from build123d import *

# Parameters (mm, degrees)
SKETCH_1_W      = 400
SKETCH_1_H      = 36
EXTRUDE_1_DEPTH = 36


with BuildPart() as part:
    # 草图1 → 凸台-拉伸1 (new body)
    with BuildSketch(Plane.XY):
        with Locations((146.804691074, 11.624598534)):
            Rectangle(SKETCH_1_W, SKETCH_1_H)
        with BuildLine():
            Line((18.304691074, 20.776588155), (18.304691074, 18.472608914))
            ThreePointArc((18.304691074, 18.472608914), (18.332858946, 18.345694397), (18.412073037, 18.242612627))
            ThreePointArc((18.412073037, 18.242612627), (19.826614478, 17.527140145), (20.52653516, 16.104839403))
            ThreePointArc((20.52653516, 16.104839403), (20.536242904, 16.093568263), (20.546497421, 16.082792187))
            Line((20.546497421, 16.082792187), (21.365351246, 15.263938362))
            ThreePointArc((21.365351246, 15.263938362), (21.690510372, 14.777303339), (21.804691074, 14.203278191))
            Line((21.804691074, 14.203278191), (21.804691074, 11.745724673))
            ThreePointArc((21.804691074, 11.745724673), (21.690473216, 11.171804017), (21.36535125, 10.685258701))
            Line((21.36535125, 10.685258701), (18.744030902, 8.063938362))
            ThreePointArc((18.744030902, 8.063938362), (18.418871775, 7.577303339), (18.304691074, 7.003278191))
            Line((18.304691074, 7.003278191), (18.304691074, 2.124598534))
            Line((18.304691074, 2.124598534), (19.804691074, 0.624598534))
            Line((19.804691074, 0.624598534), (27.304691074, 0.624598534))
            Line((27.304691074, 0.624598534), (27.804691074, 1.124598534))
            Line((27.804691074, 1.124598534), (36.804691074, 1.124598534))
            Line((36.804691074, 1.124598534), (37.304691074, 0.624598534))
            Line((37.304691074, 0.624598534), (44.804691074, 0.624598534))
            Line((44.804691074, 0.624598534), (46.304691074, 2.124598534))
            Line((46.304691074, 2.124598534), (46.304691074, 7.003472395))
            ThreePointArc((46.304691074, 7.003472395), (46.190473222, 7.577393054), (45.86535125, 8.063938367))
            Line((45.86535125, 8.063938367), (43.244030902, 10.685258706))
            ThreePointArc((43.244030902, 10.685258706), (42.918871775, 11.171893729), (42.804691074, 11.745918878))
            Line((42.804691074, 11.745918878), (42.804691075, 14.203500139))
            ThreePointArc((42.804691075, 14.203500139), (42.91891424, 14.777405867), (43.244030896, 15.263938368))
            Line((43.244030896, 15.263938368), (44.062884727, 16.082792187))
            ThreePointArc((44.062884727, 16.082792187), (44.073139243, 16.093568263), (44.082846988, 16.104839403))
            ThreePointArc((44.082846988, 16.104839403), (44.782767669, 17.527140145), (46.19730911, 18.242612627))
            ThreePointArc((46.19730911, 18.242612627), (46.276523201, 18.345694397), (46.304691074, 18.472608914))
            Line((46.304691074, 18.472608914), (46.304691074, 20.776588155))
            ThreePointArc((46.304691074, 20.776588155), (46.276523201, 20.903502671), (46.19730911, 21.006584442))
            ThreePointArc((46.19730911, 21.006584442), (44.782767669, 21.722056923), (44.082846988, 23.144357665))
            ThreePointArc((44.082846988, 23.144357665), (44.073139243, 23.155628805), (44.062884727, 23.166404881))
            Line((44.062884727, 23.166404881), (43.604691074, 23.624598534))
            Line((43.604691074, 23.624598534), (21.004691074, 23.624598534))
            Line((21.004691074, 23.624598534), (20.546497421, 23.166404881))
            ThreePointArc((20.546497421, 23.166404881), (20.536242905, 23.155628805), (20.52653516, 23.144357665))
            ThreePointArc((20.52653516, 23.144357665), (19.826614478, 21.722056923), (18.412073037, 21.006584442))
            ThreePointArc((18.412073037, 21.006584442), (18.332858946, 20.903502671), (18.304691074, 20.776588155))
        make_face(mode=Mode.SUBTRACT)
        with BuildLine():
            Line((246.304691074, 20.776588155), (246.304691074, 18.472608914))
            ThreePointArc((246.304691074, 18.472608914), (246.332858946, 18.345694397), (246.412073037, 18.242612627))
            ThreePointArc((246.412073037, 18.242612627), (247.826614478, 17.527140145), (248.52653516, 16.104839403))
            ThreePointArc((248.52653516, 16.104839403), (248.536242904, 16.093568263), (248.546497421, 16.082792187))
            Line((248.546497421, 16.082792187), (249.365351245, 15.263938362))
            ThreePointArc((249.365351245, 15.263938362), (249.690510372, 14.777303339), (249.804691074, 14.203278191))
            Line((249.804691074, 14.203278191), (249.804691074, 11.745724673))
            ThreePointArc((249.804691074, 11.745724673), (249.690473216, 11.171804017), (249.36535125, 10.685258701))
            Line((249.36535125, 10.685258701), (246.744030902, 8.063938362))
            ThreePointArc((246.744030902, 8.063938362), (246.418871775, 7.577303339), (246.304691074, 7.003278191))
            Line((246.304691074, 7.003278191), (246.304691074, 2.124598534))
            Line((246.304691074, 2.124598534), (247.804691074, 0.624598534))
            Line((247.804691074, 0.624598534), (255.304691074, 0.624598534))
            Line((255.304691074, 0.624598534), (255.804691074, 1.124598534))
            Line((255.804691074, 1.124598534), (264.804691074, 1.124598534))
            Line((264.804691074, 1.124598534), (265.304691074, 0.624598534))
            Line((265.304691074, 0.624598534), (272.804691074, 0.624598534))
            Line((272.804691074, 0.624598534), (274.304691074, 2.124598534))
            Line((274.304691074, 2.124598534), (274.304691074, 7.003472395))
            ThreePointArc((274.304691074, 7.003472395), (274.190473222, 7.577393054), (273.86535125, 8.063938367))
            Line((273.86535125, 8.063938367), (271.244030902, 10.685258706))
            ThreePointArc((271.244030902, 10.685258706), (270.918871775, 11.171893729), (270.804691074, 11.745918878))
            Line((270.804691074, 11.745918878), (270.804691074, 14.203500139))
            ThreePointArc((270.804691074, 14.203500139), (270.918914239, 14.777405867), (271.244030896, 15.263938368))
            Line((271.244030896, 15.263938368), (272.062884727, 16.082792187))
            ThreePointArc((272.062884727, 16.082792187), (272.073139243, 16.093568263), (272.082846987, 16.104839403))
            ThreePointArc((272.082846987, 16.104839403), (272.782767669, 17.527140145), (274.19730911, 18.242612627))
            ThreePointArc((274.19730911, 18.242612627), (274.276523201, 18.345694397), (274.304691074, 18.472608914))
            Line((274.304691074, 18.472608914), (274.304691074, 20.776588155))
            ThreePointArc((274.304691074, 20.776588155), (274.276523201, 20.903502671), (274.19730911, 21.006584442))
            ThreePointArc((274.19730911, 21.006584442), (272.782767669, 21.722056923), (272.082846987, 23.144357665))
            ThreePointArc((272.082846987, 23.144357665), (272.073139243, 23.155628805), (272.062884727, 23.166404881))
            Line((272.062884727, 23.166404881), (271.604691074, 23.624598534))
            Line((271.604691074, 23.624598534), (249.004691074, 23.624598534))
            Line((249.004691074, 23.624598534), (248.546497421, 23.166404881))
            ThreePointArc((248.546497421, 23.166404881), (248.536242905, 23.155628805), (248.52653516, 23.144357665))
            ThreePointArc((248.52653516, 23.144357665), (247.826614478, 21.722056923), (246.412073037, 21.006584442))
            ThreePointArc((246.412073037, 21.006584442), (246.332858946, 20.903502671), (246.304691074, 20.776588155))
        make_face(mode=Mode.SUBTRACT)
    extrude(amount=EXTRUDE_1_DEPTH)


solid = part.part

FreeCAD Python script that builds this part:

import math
import FreeCAD as App
import Part
import Sketcher
from FreeCAD import Vector
Q = App.Units.Quantity

doc = App.newDocument("Part")
body = doc.addObject("PartDesign::Body", "Body")

sketch1 = body.newObject("Sketcher::SketchObject", "Sketch")
sketch1.AttachmentSupport = (doc.getObject("XY_Plane"), [""])
sketch1.MapMode = "FlatFace"
sketch1.addGeometry([
    Part.LineSegment(Vector(-53.195, 29.625, 0), Vector(-53.195, -6.375, 0)),
    Part.LineSegment(Vector(-53.195, -6.375, 0), Vector(346.805, -6.375, 0)),
    Part.LineSegment(Vector(346.805, -6.375, 0), Vector(346.805, 29.625, 0)),
    Part.LineSegment(Vector(346.805, 29.625, 0), Vector(-53.195, 29.625, 0)),
    Part.LineSegment(Vector(18.305, 18.473, 0), Vector(18.305, 20.777, 0)),
    Part.ArcOfCircle(Part.Circle(Vector(18.605, 20.777, 0), Vector(0, 0, 1), 0.3), math.radians(130), math.radians(180)),
    Part.ArcOfCircle(Part.Circle(Vector(18.049, 23.48, 0), Vector(0, 0, 1), 2.5), math.radians(-82), math.radians(-8)),
    Part.ArcOfCircle(Part.Circle(Vector(20.759, 22.954, 0), Vector(0, 0, 1), 0.3), math.radians(135), math.radians(140.68)),
    Part.LineSegment(Vector(20.546, 23.166, 0), Vector(21.005, 23.625, 0)),
    Part.LineSegment(Vector(21.005, 23.625, 0), Vector(43.605, 23.625, 0)),
    Part.LineSegment(Vector(43.605, 23.625, 0), Vector(44.063, 23.166, 0)),
    Part.ArcOfCircle(Part.Circle(Vector(43.851, 22.954, 0), Vector(0, 0, 1), 0.3), math.radians(39.32), math.radians(45)),
    Part.ArcOfCircle(Part.Circle(Vector(46.56, 23.48, 0), Vector(0, 0, 1), 2.5), math.radians(-172), math.radians(-98)),
    Part.ArcOfCircle(Part.Circle(Vector(46.005, 20.777, 0), Vector(0, 0, 1), 0.3), math.radians(0), math.radians(50)),
    Part.LineSegment(Vector(46.305, 20.777, 0), Vector(46.305, 18.473, 0)),
    Part.ArcOfCircle(Part.Circle(Vector(46.005, 18.473, 0), Vector(0, 0, 1), 0.3), math.radians(-50), math.radians(0)),
    Part.ArcOfCircle(Part.Circle(Vector(46.56, 15.769, 0), Vector(0, 0, 1), 2.5), math.radians(98), math.radians(172)),
    Part.ArcOfCircle(Part.Circle(Vector(43.851, 16.295, 0), Vector(0, 0, 1), 0.3), math.radians(-45), math.radians(-39.32)),
    Part.LineSegment(Vector(44.063, 16.083, 0), Vector(43.244, 15.264, 0)),
    Part.ArcOfCircle(Part.Circle(Vector(44.305, 14.203, 0), Vector(0, 0, 1), 1.5), math.radians(135), math.radians(180)),
    Part.LineSegment(Vector(42.805, 14.204, 0), Vector(42.805, 11.746, 0)),
    Part.ArcOfCircle(Part.Circle(Vector(44.305, 11.746, 0), Vector(0, 0, 1), 1.5), math.radians(180), math.radians(225)),
    Part.LineSegment(Vector(43.244, 10.685, 0), Vector(45.865, 8.064, 0)),
    Part.ArcOfCircle(Part.Circle(Vector(44.805, 7.003, 0), Vector(0, 0, 1), 1.5), math.radians(0), math.radians(45)),
    Part.LineSegment(Vector(46.305, 7.003, 0), Vector(46.305, 2.125, 0)),
    Part.LineSegment(Vector(46.305, 2.125, 0), Vector(44.805, 0.625, 0)),
    Part.LineSegment(Vector(44.805, 0.625, 0), Vector(37.305, 0.625, 0)),
    Part.LineSegment(Vector(37.305, 0.625, 0), Vector(36.805, 1.125, 0)),
    Part.LineSegment(Vector(36.805, 1.125, 0), Vector(27.805, 1.125, 0)),
    Part.LineSegment(Vector(27.805, 1.125, 0), Vector(27.305, 0.625, 0)),
    Part.LineSegment(Vector(27.305, 0.625, 0), Vector(19.805, 0.625, 0)),
    Part.LineSegment(Vector(19.805, 0.625, 0), Vector(18.305, 2.125, 0)),
    Part.LineSegment(Vector(18.305, 2.125, 0), Vector(18.305, 7.003, 0)),
    Part.ArcOfCircle(Part.Circle(Vector(19.805, 7.003, 0), Vector(0, 0, 1), 1.5), math.radians(135), math.radians(180)),
    Part.LineSegment(Vector(18.744, 8.064, 0), Vector(21.365, 10.685, 0)),
    Part.ArcOfCircle(Part.Circle(Vector(20.305, 11.746, 0), Vector(0, 0, 1), 1.5), math.radians(-45), math.radians(0)),
    Part.LineSegment(Vector(21.805, 11.746, 0), Vector(21.805, 14.203, 0)),
    Part.ArcOfCircle(Part.Circle(Vector(20.305, 14.203, 0), Vector(0, 0, 1), 1.5), math.radians(0), math.radians(45)),
    Part.LineSegment(Vector(21.365, 15.264, 0), Vector(20.546, 16.083, 0)),
    Part.ArcOfCircle(Part.Circle(Vector(20.759, 16.295, 0), Vector(0, 0, 1), 0.3), math.radians(-140.68), math.radians(-135)),
    Part.ArcOfCircle(Part.Circle(Vector(18.049, 15.769, 0), Vector(0, 0, 1), 2.5), math.radians(8), math.radians(82)),
    Part.ArcOfCircle(Part.Circle(Vector(18.605, 18.473, 0), Vector(0, 0, 1), 0.3), math.radians(180), math.radians(230)),
    Part.LineSegment(Vector(246.305, 18.473, 0), Vector(246.305, 20.777, 0)),
    Part.ArcOfCircle(Part.Circle(Vector(246.605, 20.777, 0), Vector(0, 0, 1), 0.3), math.radians(130), math.radians(180)),
    Part.ArcOfCircle(Part.Circle(Vector(246.049, 23.48, 0), Vector(0, 0, 1), 2.5), math.radians(-82), math.radians(-8)),
    Part.ArcOfCircle(Part.Circle(Vector(248.759, 22.954, 0), Vector(0, 0, 1), 0.3), math.radians(135), math.radians(140.68)),
    Part.LineSegment(Vector(248.546, 23.166, 0), Vector(249.005, 23.625, 0)),
    Part.LineSegment(Vector(249.005, 23.625, 0), Vector(271.605, 23.625, 0)),
    Part.LineSegment(Vector(271.605, 23.625, 0), Vector(272.063, 23.166, 0)),
    Part.ArcOfCircle(Part.Circle(Vector(271.851, 22.954, 0), Vector(0, 0, 1), 0.3), math.radians(39.32), math.radians(45)),
    Part.ArcOfCircle(Part.Circle(Vector(274.56, 23.48, 0), Vector(0, 0, 1), 2.5), math.radians(-172), math.radians(-98)),
    Part.ArcOfCircle(Part.Circle(Vector(274.005, 20.777, 0), Vector(0, 0, 1), 0.3), math.radians(0), math.radians(50)),
    Part.LineSegment(Vector(274.305, 20.777, 0), Vector(274.305, 18.473, 0)),
    Part.ArcOfCircle(Part.Circle(Vector(274.005, 18.473, 0), Vector(0, 0, 1), 0.3), math.radians(-50), math.radians(0)),
    Part.ArcOfCircle(Part.Circle(Vector(274.56, 15.769, 0), Vector(0, 0, 1), 2.5), math.radians(98), math.radians(172)),
    Part.ArcOfCircle(Part.Circle(Vector(271.851, 16.295, 0), Vector(0, 0, 1), 0.3), math.radians(-45), math.radians(-39.32)),
    Part.LineSegment(Vector(272.063, 16.083, 0), Vector(271.244, 15.264, 0)),
    Part.ArcOfCircle(Part.Circle(Vector(272.305, 14.203, 0), Vector(0, 0, 1), 1.5), math.radians(135), math.radians(180)),
    Part.LineSegment(Vector(270.805, 14.204, 0), Vector(270.805, 11.746, 0)),
    Part.ArcOfCircle(Part.Circle(Vector(272.305, 11.746, 0), Vector(0, 0, 1), 1.5), math.radians(180), math.radians(225)),
    Part.LineSegment(Vector(271.244, 10.685, 0), Vector(273.865, 8.064, 0)),
    Part.ArcOfCircle(Part.Circle(Vector(272.805, 7.003, 0), Vector(0, 0, 1), 1.5), math.radians(0), math.radians(45)),
    Part.LineSegment(Vector(274.305, 7.003, 0), Vector(274.305, 2.125, 0)),
    Part.LineSegment(Vector(274.305, 2.125, 0), Vector(272.805, 0.625, 0)),
    Part.LineSegment(Vector(272.805, 0.625, 0), Vector(265.305, 0.625, 0)),
    Part.LineSegment(Vector(265.305, 0.625, 0), Vector(264.805, 1.125, 0)),
    Part.LineSegment(Vector(264.805, 1.125, 0), Vector(255.805, 1.125, 0)),
    Part.LineSegment(Vector(255.805, 1.125, 0), Vector(255.305, 0.625, 0)),
    Part.LineSegment(Vector(255.305, 0.625, 0), Vector(247.805, 0.625, 0)),
    Part.LineSegment(Vector(247.805, 0.625, 0), Vector(246.305, 2.125, 0)),
    Part.LineSegment(Vector(246.305, 2.125, 0), Vector(246.305, 7.003, 0)),
    Part.ArcOfCircle(Part.Circle(Vector(247.805, 7.003, 0), Vector(0, 0, 1), 1.5), math.radians(135), math.radians(180)),
    Part.LineSegment(Vector(246.744, 8.064, 0), Vector(249.365, 10.685, 0)),
    Part.ArcOfCircle(Part.Circle(Vector(248.305, 11.746, 0), Vector(0, 0, 1), 1.5), math.radians(-45), math.radians(0)),
    Part.LineSegment(Vector(249.805, 11.746, 0), Vector(249.805, 14.203, 0)),
    Part.ArcOfCircle(Part.Circle(Vector(248.305, 14.203, 0), Vector(0, 0, 1), 1.5), math.radians(0), math.radians(45)),
    Part.LineSegment(Vector(249.365, 15.264, 0), Vector(248.546, 16.083, 0)),
    Part.ArcOfCircle(Part.Circle(Vector(248.759, 16.295, 0), Vector(0, 0, 1), 0.3), math.radians(-140.68), math.radians(-135)),
    Part.ArcOfCircle(Part.Circle(Vector(246.049, 15.769, 0), Vector(0, 0, 1), 2.5), math.radians(8), math.radians(82)),
    Part.ArcOfCircle(Part.Circle(Vector(246.605, 18.473, 0), Vector(0, 0, 1), 0.3), math.radians(180), math.radians(230)),
], False)
sketch1.addConstraint([
    Sketcher.Constraint("Coincident", 0, 2, 1, 1),
    Sketcher.Constraint("Coincident", 1, 2, 2, 1),
    Sketcher.Constraint("Coincident", 2, 2, 3, 1),
    Sketcher.Constraint("Coincident", 3, 2, 0, 1),
    Sketcher.Constraint("Tangent", 4, 2, 5, 2),
    Sketcher.Constraint("Coincident", 5, 1, 6, 1),
    Sketcher.Constraint("Coincident", 6, 2, 7, 2),
    Sketcher.Constraint("Tangent", 7, 1, 8, 1),
    Sketcher.Constraint("Coincident", 8, 2, 9, 1),
    Sketcher.Constraint("Coincident", 9, 2, 10, 1),
    Sketcher.Constraint("Tangent", 10, 2, 11, 2),
    Sketcher.Constraint("Coincident", 11, 1, 12, 1),
    Sketcher.Constraint("Coincident", 12, 2, 13, 2),
    Sketcher.Constraint("Tangent", 13, 1, 14, 1),
    Sketcher.Constraint("Tangent", 14, 2, 15, 2),
    Sketcher.Constraint("Coincident", 15, 1, 16, 1),
    Sketcher.Constraint("Coincident", 16, 2, 17, 2),
    Sketcher.Constraint("Tangent", 17, 1, 18, 1),
    Sketcher.Constraint("Tangent", 18, 2, 19, 1),
    Sketcher.Constraint("Coincident", 19, 2, 20, 1),
    Sketcher.Constraint("Tangent", 20, 2, 21, 1),
    Sketcher.Constraint("Tangent", 21, 2, 22, 1),
    Sketcher.Constraint("Tangent", 22, 2, 23, 2),
    Sketcher.Constraint("Coincident", 23, 1, 24, 1),
    Sketcher.Constraint("Coincident", 24, 2, 25, 1),
    Sketcher.Constraint("Coincident", 25, 2, 26, 1),
    Sketcher.Constraint("Coincident", 26, 2, 27, 1),
    Sketcher.Constraint("Coincident", 27, 2, 28, 1),
    Sketcher.Constraint("Coincident", 28, 2, 29, 1),
    Sketcher.Constraint("Coincident", 29, 2, 30, 1),
    Sketcher.Constraint("Coincident", 30, 2, 31, 1),
    Sketcher.Constraint("Coincident", 31, 2, 32, 1),
    Sketcher.Constraint("Tangent", 32, 2, 33, 2),
    Sketcher.Constraint("Tangent", 33, 1, 34, 1),
    Sketcher.Constraint("Tangent", 34, 2, 35, 1),
    Sketcher.Constraint("Coincident", 35, 2, 36, 1),
    Sketcher.Constraint("Tangent", 36, 2, 37, 1),
    Sketcher.Constraint("Tangent", 37, 2, 38, 1),
    Sketcher.Constraint("Tangent", 38, 2, 39, 2),
    Sketcher.Constraint("Coincident", 39, 1, 40, 1),
    Sketcher.Constraint("Coincident", 40, 2, 41, 2),
    Sketcher.Constraint("Tangent", 41, 1, 4, 1),
    Sketcher.Constraint("Tangent", 42, 2, 43, 2),
    Sketcher.Constraint("Coincident", 43, 1, 44, 1),
    Sketcher.Constraint("Coincident", 44, 2, 45, 2),
    Sketcher.Constraint("Tangent", 45, 1, 46, 1),
    Sketcher.Constraint("Coincident", 46, 2, 47, 1),
    Sketcher.Constraint("Coincident", 47, 2, 48, 1),
    Sketcher.Constraint("Tangent", 48, 2, 49, 2),
    Sketcher.Constraint("Coincident", 49, 1, 50, 1),
    Sketcher.Constraint("Coincident", 50, 2, 51, 2),
    Sketcher.Constraint("Tangent", 51, 1, 52, 1),
    Sketcher.Constraint("Tangent", 52, 2, 53, 2),
    Sketcher.Constraint("Coincident", 53, 1, 54, 1),
    Sketcher.Constraint("Coincident", 54, 2, 55, 2),
    Sketcher.Constraint("Tangent", 55, 1, 56, 1),
    Sketcher.Constraint("Tangent", 56, 2, 57, 1),
    Sketcher.Constraint("Coincident", 57, 2, 58, 1),
    Sketcher.Constraint("Tangent", 58, 2, 59, 1),
    Sketcher.Constraint("Tangent", 59, 2, 60, 1),
    Sketcher.Constraint("Tangent", 60, 2, 61, 2),
    Sketcher.Constraint("Coincident", 61, 1, 62, 1),
    Sketcher.Constraint("Coincident", 62, 2, 63, 1),
    Sketcher.Constraint("Coincident", 63, 2, 64, 1),
    Sketcher.Constraint("Coincident", 64, 2, 65, 1),
    Sketcher.Constraint("Coincident", 65, 2, 66, 1),
    Sketcher.Constraint("Coincident", 66, 2, 67, 1),
    Sketcher.Constraint("Coincident", 67, 2, 68, 1),
    Sketcher.Constraint("Coincident", 68, 2, 69, 1),
    Sketcher.Constraint("Coincident", 69, 2, 70, 1),
    Sketcher.Constraint("Tangent", 70, 2, 71, 2),
    Sketcher.Constraint("Tangent", 71, 1, 72, 1),
    Sketcher.Constraint("Tangent", 72, 2, 73, 1),
    Sketcher.Constraint("Coincident", 73, 2, 74, 1),
    Sketcher.Constraint("Tangent", 74, 2, 75, 1),
    Sketcher.Constraint("Tangent", 75, 2, 76, 1),
    Sketcher.Constraint("Tangent", 76, 2, 77, 2),
    Sketcher.Constraint("Coincident", 77, 1, 78, 1),
    Sketcher.Constraint("Coincident", 78, 2, 79, 2),
    Sketcher.Constraint("Tangent", 79, 1, 42, 1),
    Sketcher.Constraint("Vertical", 0),
    Sketcher.Constraint("Horizontal", 1),
    Sketcher.Constraint("Vertical", 2),
    Sketcher.Constraint("Horizontal", 3),
    Sketcher.Constraint("Vertical", 4),
    Sketcher.Constraint("Horizontal", 9),
    Sketcher.Constraint("Vertical", 14),
    Sketcher.Constraint("Vertical", 20),
    Sketcher.Constraint("Vertical", 24),
    Sketcher.Constraint("Horizontal", 26),
    Sketcher.Constraint("Horizontal", 28),
    Sketcher.Constraint("Horizontal", 30),
    Sketcher.Constraint("Vertical", 32),
    Sketcher.Constraint("Vertical", 36),
    Sketcher.Constraint("Vertical", 42),
    Sketcher.Constraint("Horizontal", 47),
    Sketcher.Constraint("Vertical", 52),
    Sketcher.Constraint("Vertical", 58),
    Sketcher.Constraint("Vertical", 62),
    Sketcher.Constraint("Horizontal", 64),
    Sketcher.Constraint("Horizontal", 66),
    Sketcher.Constraint("Horizontal", 68),
    Sketcher.Constraint("Vertical", 70),
    Sketcher.Constraint("Vertical", 74),
    Sketcher.Constraint("Equal", 5, 7),
    Sketcher.Constraint("Equal", 7, 11),
    Sketcher.Constraint("Equal", 6, 12),
    Sketcher.Constraint("Equal", 11, 13),
    Sketcher.Constraint("Equal", 13, 15),
    Sketcher.Constraint("Equal", 12, 16),
    Sketcher.Constraint("Equal", 15, 17),
    Sketcher.Constraint("Equal", 19, 21),
    Sketcher.Constraint("Equal", 21, 23),
    Sketcher.Constraint("Equal", 23, 33),
    Sketcher.Constraint("Equal", 33, 35),
    Sketcher.Constraint("Equal", 35, 37),
    Sketcher.Constraint("Equal", 17, 39),
    Sketcher.Constraint("Equal", 16, 40),
    Sketcher.Constraint("Equal", 39, 41),
    Sketcher.Constraint("Equal", 41, 43),
    Sketcher.Constraint("Equal", 40, 44),
    Sketcher.Constraint("Equal", 43, 45),
    Sketcher.Constraint("Equal", 45, 49),
    Sketcher.Constraint("Equal", 44, 50),
    Sketcher.Constraint("Equal", 49, 51),
    Sketcher.Constraint("Equal", 51, 53),
    Sketcher.Constraint("Equal", 50, 54),
    Sketcher.Constraint("Equal", 53, 55),
    Sketcher.Constraint("Equal", 37, 57),
    Sketcher.Constraint("Equal", 57, 59),
    Sketcher.Constraint("Equal", 59, 61),
    Sketcher.Constraint("Equal", 61, 71),
    Sketcher.Constraint("Equal", 71, 73),
    Sketcher.Constraint("Equal", 73, 75),
    Sketcher.Constraint("Equal", 55, 77),
    Sketcher.Constraint("Equal", 54, 78),
    Sketcher.Constraint("Equal", 77, 79),
    Sketcher.Constraint("Perpendicular", 8, 10),
    Sketcher.Constraint("Perpendicular", 10, 18),
    Sketcher.Constraint("Perpendicular", 18, 22),
    Sketcher.Constraint("Perpendicular", 22, 25),
    Sketcher.Constraint("Perpendicular", 25, 27),
    Sketcher.Constraint("Perpendicular", 27, 29),
    Sketcher.Constraint("Perpendicular", 29, 31),
    Sketcher.Constraint("Perpendicular", 31, 34),
    Sketcher.Constraint("Perpendicular", 34, 38),
    Sketcher.Constraint("Perpendicular", 38, 46),
    Sketcher.Constraint("Perpendicular", 46, 48),
    Sketcher.Constraint("Perpendicular", 48, 56),
    Sketcher.Constraint("Perpendicular", 56, 60),
    Sketcher.Constraint("Perpendicular", 60, 63),
    Sketcher.Constraint("Perpendicular", 63, 65),
    Sketcher.Constraint("Perpendicular", 65, 67),
    Sketcher.Constraint("Perpendicular", 67, 69),
    Sketcher.Constraint("Perpendicular", 69, 72),
    Sketcher.Constraint("Perpendicular", 72, 76),
    Sketcher.Constraint("Horizontal", 7, 3, 11, 3),
    Sketcher.Constraint("Horizontal", 6, 3, 12, 3),
    Sketcher.Constraint("Horizontal", 5, 3, 13, 3),
    Sketcher.Constraint("Horizontal", 23, 3, 33, 3),
    Sketcher.Constraint("Horizontal", 21, 3, 35, 3),
    Sketcher.Constraint("Horizontal", 19, 3, 37, 3),
    Sketcher.Constraint("Horizontal", 17, 3, 39, 3),
    Sketcher.Constraint("Horizontal", 16, 3, 40, 3),
    Sketcher.Constraint("Horizontal", 15, 3, 41, 3),
    Sketcher.Constraint("Horizontal", 13, 3, 43, 3),
    Sketcher.Constraint("Horizontal", 12, 3, 44, 3),
    Sketcher.Constraint("Horizontal", 11, 3, 45, 3),
    Sketcher.Constraint("Horizontal", 45, 3, 49, 3),
    Sketcher.Constraint("Horizontal", 44, 3, 50, 3),
    Sketcher.Constraint("Horizontal", 43, 3, 51, 3),
    Sketcher.Constraint("Horizontal", 41, 3, 53, 3),
    Sketcher.Constraint("Horizontal", 40, 3, 54, 3),
    Sketcher.Constraint("Horizontal", 39, 3, 55, 3),
    Sketcher.Constraint("Horizontal", 37, 3, 57, 3),
    Sketcher.Constraint("Horizontal", 35, 3, 59, 3),
    Sketcher.Constraint("Horizontal", 33, 3, 61, 3),
    Sketcher.Constraint("Horizontal", 61, 3, 71, 3),
    Sketcher.Constraint("Horizontal", 59, 3, 73, 3),
    Sketcher.Constraint("Horizontal", 57, 3, 75, 3),
    Sketcher.Constraint("Horizontal", 55, 3, 77, 3),
    Sketcher.Constraint("Horizontal", 54, 3, 78, 3),
    Sketcher.Constraint("Horizontal", 53, 3, 79, 3),
    Sketcher.Constraint("Horizontal", 7, 1, 10, 2),
    Sketcher.Constraint("Horizontal", 6, 2, 11, 1),
    Sketcher.Constraint("Horizontal", 5, 1, 12, 2),
    Sketcher.Constraint("Horizontal", 26, 2, 29, 2),
    Sketcher.Constraint("Horizontal", 24, 2, 31, 2),
    Sketcher.Constraint("Horizontal", 16, 2, 39, 1),
    Sketcher.Constraint("Horizontal", 15, 1, 40, 2),
    Sketcher.Constraint("Horizontal", 12, 2, 43, 1),
    Sketcher.Constraint("Horizontal", 11, 1, 44, 2),
    Sketcher.Constraint("Horizontal", 9, 2, 46, 2),
    Sketcher.Constraint("Horizontal", 44, 2, 49, 1),
    Sketcher.Constraint("Horizontal", 43, 1, 50, 2),
    Sketcher.Constraint("Horizontal", 40, 2, 53, 1),
    Sketcher.Constraint("Horizontal", 39, 1, 54, 2),
    Sketcher.Constraint("Horizontal", 19, 2, 57, 2),
    Sketcher.Constraint("Horizontal", 23, 1, 61, 1),
    Sketcher.Constraint("Horizontal", 31, 2, 62, 2),
    Sketcher.Constraint("Horizontal", 30, 2, 63, 2),
    Sketcher.Constraint("Horizontal", 28, 2, 65, 2),
    Sketcher.Constraint("Horizontal", 64, 2, 67, 2),
    Sketcher.Constraint("Horizontal", 62, 2, 69, 2),
    Sketcher.Constraint("Horizontal", 35, 2, 73, 2),
    Sketcher.Constraint("Horizontal", 54, 2, 77, 1),
    Sketcher.Constraint("Horizontal", 53, 1, 78, 2),
    Sketcher.Constraint("Vertical", 12, 3, 16, 3),
    Sketcher.Constraint("Vertical", 11, 3, 17, 3),
    Sketcher.Constraint("Vertical", 12, 2, 15, 1),
    Sketcher.Constraint("Vertical", 11, 1, 16, 2),
    Sketcher.Constraint("Vertical", 14, 2, 23, 1),
    Sketcher.Constraint("Vertical", 23, 3, 25, 2),
    Sketcher.Constraint("Equal", 26, 30),
    Sketcher.Constraint("Equal", 9, 47),
    Sketcher.Constraint("Equal", 30, 64),
    Sketcher.Constraint("Equal", 28, 66),
    Sketcher.Constraint("Radius", 5, Q("0.3 mm")),
    Sketcher.Constraint("Radius", 6, Q("2.5 mm")),
    Sketcher.Constraint("Radius", 19, Q("1.5 mm")),
    Sketcher.Constraint("DistanceX", 1, 1, 1, 2, Q("400 mm")),
    Sketcher.Constraint("DistanceX", 28, 2, 28, 1, Q("9 mm")),
    Sketcher.Constraint("DistanceY", 0, 2, 0, 1, Q("36 mm")),
    Sketcher.Constraint("DistanceX", 9, 1, 9, 2, Q("22.6 mm")),
    Sketcher.Constraint("DistanceX", 26, 2, 26, 1, Q("7.5 mm")),
    Sketcher.Constraint("DistanceY", 4, 1, 4, 2, Q("2.303979 mm")),
    Sketcher.Constraint("DistanceY", 20, 2, 20, 1, Q("2.457581 mm")),
    Sketcher.Constraint("DistanceY", 32, 1, 32, 2, Q("4.87868 mm")),
    Sketcher.Constraint("DistanceX", -1, 1, 12, 3, Q("46.560199 mm")),
    Sketcher.Constraint("DistanceX", -1, 1, 50, 3, Q("274.560199 mm")),
    Sketcher.Constraint("DistanceY", 0, 2, -1, 1, Q("6.375401 mm")),
    Sketcher.Constraint("DistanceY", -1, 1, 8, 2, Q("23.624599 mm")),
    Sketcher.Constraint("DistanceY", -1, 1, 19, 2, Q("14.2035 mm")),
    Sketcher.Constraint("DistanceY", -1, 1, 24, 2, Q("2.124599 mm")),
    Sketcher.Constraint("DistanceY", -1, 1, 27, 2, Q("1.124599 mm")),
    Sketcher.Constraint("DistanceY", 24, 2, 24, 1, Q("4.878874 mm")),
    Sketcher.Constraint("DistanceY", 36, 1, 36, 2, Q("2.457554 mm")),
    Sketcher.Constraint("DistanceX", -1, 1, 5, 3, Q("18.604691 mm")),
    Sketcher.Constraint("DistanceY", -1, 1, 5, 3, Q("20.776588 mm")),
    Sketcher.Constraint("DistanceX", -1, 1, 7, 3, Q("20.75863 mm")),
    Sketcher.Constraint("DistanceY", -1, 1, 16, 3, Q("15.769091 mm")),
    Sketcher.Constraint("DistanceX", 0, 2, -1, 1, Q("53.195309 mm")),
])
pad1 = body.newObject("PartDesign::Pad", "Pad")
pad1.Profile = sketch1
pad1.Length = 36

doc.recompute()
